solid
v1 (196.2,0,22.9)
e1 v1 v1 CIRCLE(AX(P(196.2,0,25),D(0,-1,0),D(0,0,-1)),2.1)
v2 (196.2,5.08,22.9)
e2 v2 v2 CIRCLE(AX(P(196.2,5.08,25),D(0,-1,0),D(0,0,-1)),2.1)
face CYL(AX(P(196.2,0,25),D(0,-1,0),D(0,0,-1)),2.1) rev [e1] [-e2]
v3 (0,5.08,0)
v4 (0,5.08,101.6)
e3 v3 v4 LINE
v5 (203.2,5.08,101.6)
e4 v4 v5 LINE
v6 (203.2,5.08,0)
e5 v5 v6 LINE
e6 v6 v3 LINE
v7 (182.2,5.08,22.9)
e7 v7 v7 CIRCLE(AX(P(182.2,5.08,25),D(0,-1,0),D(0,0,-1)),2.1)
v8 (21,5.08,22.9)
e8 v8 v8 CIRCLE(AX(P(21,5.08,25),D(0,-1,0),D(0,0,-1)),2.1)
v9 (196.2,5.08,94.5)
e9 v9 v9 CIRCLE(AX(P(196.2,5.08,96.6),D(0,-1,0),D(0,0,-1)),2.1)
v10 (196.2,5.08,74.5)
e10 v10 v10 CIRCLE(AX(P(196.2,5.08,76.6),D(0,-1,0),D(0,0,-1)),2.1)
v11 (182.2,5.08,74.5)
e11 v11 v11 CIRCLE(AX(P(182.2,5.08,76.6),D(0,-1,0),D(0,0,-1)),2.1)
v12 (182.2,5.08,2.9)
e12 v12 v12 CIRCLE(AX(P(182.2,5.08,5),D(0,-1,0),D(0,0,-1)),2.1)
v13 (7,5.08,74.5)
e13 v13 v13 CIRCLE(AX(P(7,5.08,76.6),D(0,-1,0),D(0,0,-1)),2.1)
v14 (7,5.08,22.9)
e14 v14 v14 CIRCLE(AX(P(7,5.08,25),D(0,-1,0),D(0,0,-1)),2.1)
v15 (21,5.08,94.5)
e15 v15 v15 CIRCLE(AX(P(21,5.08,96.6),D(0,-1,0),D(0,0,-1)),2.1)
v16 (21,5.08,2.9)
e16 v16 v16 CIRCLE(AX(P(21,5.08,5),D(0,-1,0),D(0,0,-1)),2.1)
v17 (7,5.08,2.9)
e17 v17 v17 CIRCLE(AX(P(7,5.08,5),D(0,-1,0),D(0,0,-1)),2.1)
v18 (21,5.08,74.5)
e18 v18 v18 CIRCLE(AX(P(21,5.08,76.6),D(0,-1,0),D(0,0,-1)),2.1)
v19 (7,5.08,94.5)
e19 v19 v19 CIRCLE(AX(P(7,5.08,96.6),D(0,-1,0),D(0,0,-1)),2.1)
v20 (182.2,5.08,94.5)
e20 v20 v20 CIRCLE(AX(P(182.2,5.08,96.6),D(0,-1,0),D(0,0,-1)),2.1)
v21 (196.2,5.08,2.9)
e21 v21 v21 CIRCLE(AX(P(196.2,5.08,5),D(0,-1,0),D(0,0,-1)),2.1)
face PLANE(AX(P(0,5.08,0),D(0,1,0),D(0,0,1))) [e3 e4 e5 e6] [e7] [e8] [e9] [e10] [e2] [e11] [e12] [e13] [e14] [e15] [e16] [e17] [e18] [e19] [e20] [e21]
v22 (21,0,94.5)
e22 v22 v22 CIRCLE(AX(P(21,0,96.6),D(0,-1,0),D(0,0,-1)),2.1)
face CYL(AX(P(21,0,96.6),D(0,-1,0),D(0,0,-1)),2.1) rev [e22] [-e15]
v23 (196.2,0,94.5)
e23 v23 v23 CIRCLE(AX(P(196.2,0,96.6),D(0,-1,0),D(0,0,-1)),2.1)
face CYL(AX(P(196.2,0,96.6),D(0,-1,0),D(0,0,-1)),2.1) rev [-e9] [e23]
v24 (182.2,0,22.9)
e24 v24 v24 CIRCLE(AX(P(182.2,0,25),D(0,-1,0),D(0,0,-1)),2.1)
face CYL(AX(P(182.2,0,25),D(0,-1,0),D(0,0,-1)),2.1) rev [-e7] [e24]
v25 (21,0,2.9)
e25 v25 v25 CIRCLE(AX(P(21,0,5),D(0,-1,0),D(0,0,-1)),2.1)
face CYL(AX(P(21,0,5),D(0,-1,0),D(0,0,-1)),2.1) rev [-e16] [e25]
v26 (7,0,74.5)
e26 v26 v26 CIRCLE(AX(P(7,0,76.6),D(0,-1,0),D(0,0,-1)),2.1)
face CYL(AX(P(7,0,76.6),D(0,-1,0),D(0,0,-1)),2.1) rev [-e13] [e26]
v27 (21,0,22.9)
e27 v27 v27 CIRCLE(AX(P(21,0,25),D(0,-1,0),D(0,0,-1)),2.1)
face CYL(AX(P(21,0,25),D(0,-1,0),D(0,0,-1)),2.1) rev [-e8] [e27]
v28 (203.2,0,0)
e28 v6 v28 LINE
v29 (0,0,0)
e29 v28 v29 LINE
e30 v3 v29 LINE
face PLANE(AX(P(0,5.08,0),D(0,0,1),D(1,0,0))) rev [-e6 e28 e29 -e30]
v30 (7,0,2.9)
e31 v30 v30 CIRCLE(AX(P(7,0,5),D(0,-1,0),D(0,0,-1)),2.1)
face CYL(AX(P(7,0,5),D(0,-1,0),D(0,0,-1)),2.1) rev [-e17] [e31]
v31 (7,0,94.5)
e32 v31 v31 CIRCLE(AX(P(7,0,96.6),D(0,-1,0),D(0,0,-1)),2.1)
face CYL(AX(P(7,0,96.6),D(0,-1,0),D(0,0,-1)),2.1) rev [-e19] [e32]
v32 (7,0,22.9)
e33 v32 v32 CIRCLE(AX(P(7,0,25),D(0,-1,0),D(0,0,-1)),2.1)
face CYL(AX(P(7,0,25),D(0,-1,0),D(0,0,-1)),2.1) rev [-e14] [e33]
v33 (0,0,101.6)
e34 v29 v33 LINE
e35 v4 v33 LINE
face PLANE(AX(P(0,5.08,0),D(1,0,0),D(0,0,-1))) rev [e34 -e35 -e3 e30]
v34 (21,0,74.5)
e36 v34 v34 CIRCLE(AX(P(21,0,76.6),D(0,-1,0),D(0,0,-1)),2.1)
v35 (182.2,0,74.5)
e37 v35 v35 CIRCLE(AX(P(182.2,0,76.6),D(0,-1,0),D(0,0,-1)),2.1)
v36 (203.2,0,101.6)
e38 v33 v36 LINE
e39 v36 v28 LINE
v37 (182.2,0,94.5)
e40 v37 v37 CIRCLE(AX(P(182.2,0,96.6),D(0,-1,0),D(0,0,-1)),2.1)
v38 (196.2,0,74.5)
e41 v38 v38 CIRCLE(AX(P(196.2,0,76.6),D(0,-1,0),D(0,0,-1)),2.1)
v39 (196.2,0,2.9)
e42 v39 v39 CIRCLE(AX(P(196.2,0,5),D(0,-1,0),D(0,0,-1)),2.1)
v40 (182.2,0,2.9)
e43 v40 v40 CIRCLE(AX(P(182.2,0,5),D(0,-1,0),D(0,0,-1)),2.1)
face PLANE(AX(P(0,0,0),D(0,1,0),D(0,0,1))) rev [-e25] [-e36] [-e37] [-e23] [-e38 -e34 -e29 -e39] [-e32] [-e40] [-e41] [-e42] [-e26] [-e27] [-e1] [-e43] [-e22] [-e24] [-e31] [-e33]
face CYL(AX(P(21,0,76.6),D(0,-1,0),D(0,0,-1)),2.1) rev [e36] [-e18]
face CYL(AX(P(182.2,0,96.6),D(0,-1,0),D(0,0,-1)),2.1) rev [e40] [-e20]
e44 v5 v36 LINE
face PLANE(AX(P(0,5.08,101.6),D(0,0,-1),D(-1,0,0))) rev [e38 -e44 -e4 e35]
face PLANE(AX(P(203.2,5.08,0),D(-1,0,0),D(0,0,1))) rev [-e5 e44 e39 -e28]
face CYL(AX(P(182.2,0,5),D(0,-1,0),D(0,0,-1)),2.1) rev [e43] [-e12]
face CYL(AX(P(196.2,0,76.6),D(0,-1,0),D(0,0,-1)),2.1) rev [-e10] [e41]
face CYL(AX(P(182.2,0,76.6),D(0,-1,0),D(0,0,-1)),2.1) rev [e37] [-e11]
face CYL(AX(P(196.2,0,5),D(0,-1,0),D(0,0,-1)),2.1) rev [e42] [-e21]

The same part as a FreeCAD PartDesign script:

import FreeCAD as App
import Part
import Sketcher

V = App.Vector
Q = App.Units.Quantity

doc = App.newDocument("Part")
params = doc.addObject("Spreadsheet::Sheet", "Params")
for row, (alias, value) in enumerate([
    ("sketch1_width", "8 in"),
    ("sketch1_height", "4 in"),
    ("pad1_length", "0.2 in"),
    ("hole_diameter", "4.2 mm"),
], start=1):
    params.set(f"A{row}", alias)
    params.set(f"B{row}", "=" + value)
    params.setAlias(f"B{row}", alias)

body = doc.addObject("PartDesign::Body", "Body")

sketch1 = doc.addObject("Sketcher::SketchObject", "Sketch")
body.addObject(sketch1)
sketch1.AttachmentSupport = (doc.XZ_Plane, [""])
sketch1.MapMode = "FlatFace"
sketch1.addGeometry(Part.LineSegment(V(0, 0, 0), V(0, 101.6, 0)), False)
sketch1.addGeometry(Part.LineSegment(V(0, 101.6, 0), V(203.2, 101.6, 0)), False)
sketch1.addGeometry(Part.LineSegment(V(203.2, 101.6, 0), V(203.2, 0, 0)), False)
sketch1.addGeometry(Part.LineSegment(V(203.2, 0, 0), V(0, 0, 0)), False)
sketch1.addConstraint(Sketcher.Constraint("Coincident", 0, 2, 1, 1))
sketch1.addConstraint(Sketcher.Constraint("Coincident", 1, 2, 2, 1))
sketch1.addConstraint(Sketcher.Constraint("Coincident", 2, 2, 3, 1))
sketch1.addConstraint(Sketcher.Constraint("Coincident", 3, 2, 0, 1))
sketch1.addConstraint(Sketcher.Constraint("Vertical", 0))
sketch1.addConstraint(Sketcher.Constraint("Horizontal", 1))
sketch1.addConstraint(Sketcher.Constraint("Vertical", 2))
sketch1.addConstraint(Sketcher.Constraint("Horizontal", 3))
sketch1.addConstraint(Sketcher.Constraint("Coincident", 3, 2, -1, 1))
sketch1.addConstraint(Sketcher.Constraint("DistanceX", 1, 1, 1, 2, Q("8 in")))
sketch1.addConstraint(Sketcher.Constraint("DistanceY", 0, 1, 0, 2, Q("4 in")))
sketch1.setExpression("Constraints[9]", "Params.sketch1_width")
sketch1.setExpression("Constraints[10]", "Params.sketch1_height")
pad1 = doc.addObject("PartDesign::Pad", "Pad")
body.addObject(pad1)
pad1.Profile = sketch1
pad1.setExpression("Length", "Params.pad1_length")
pad1.Reversed = True

sketch2 = doc.addObject("Sketcher::SketchObject", "Sketch001")
body.addObject(sketch2)
sketch2.AttachmentSupport = (doc.XZ_Plane, [""])
sketch2.MapMode = "FlatFace"
sketch2.addGeometry(Part.Circle(V(196.2, 5, 0), V(0, 0, 1), 2.1), False)
sketch2.addGeometry(Part.Circle(V(182.2, 5, 0), V(0, 0, 1), 2.1), False)
sketch2.addGeometry(Part.Circle(V(196.2, 25, 0), V(0, 0, 1), 2.1), False)
sketch2.addGeometry(Part.Circle(V(182.2, 25, 0), V(0, 0, 1), 2.1), False)
sketch2.addGeometry(Part.Circle(V(21, 5, 0), V(0, 0, 1), 2.1), False)
sketch2.addGeometry(Part.Circle(V(7, 5, 0), V(0, 0, 1), 2.1), False)
sketch2.addGeometry(Part.Circle(V(21, 25, 0), V(0, 0, 1), 2.1), False)
sketch2.addGeometry(Part.Circle(V(7, 25, 0), V(0, 0, 1), 2.1), False)
sketch2.addGeometry(Part.Circle(V(7, 76.6, 0), V(0, 0, 1), 2.1), False)
sketch2.addGeometry(Part.Circle(V(196.2, 76.6, 0), V(0, 0, 1), 2.1), False)
sketch2.addGeometry(Part.Circle(V(182.2, 76.6, 0), V(0, 0, 1), 2.1), False)
sketch2.addGeometry(Part.Circle(V(182.2, 96.6, 0), V(0, 0, 1), 2.1), False)
sketch2.addGeometry(Part.Circle(V(196.2, 96.6, 0), V(0, 0, 1), 2.1), False)
sketch2.addGeometry(Part.Circle(V(21, 76.6, 0), V(0, 0, 1), 2.1), False)
sketch2.addGeometry(Part.Circle(V(21, 96.6, 0), V(0, 0, 1), 2.1), False)
sketch2.addGeometry(Part.Circle(V(7, 96.6, 0), V(0, 0, 1), 2.1), False)
sketch2.addConstraint(Sketcher.Constraint("Equal", 0, 1))
sketch2.addConstraint(Sketcher.Constraint("Equal", 1, 2))
sketch2.addConstraint(Sketcher.Constraint("Equal", 2, 3))
sketch2.addConstraint(Sketcher.Constraint("Equal", 3, 4))
sketch2.addConstraint(Sketcher.Constraint("Equal", 4, 5))
sketch2.addConstraint(Sketcher.Constraint("Equal", 5, 6))
sketch2.addConstraint(Sketcher.Constraint("Equal", 6, 7))
sketch2.addConstraint(Sketcher.Constraint("Equal", 7, 8))
sketch2.addConstraint(Sketcher.Constraint("Equal", 8, 9))
sketch2.addConstraint(Sketcher.Constraint("Equal", 9, 10))
sketch2.addConstraint(Sketcher.Constraint("Equal", 10, 11))
sketch2.addConstraint(Sketcher.Constraint("Equal", 11, 12))
sketch2.addConstraint(Sketcher.Constraint("Equal", 12, 13))
sketch2.addConstraint(Sketcher.Constraint("Equal", 13, 14))
sketch2.addConstraint(Sketcher.Constraint("Equal", 14, 15))
sketch2.addConstraint(Sketcher.Constraint("Horizontal", 0, 3, 1, 3))
sketch2.addConstraint(Sketcher.Constraint("Horizontal", 2, 3, 3, 3))
sketch2.addConstraint(Sketcher.Constraint("Horizontal", 1, 3, 4, 3))
sketch2.addConstraint(Sketcher.Constraint("Horizontal", 4, 3, 5, 3))
sketch2.addConstraint(Sketcher.Constraint("Horizontal", 3, 3, 6, 3))
sketch2.addConstraint(Sketcher.Constraint("Horizontal", 6, 3, 7, 3))
sketch2.addConstraint(Sketcher.Constraint("Horizontal", 8, 3, 9, 3))
sketch2.addConstraint(Sketcher.Constraint("Horizontal", 9, 3, 10, 3))
sketch2.addConstraint(Sketcher.Constraint("Horizontal", 11, 3, 12, 3))
sketch2.addConstraint(Sketcher.Constraint("Horizontal", 10, 3, 13, 3))
sketch2.addConstraint(Sketcher.Constraint("Horizontal", 12, 3, 14, 3))
sketch2.addConstraint(Sketcher.Constraint("Horizontal", 14, 3, 15, 3))
sketch2.addConstraint(Sketcher.Constraint("Vertical", 0, 3, 2, 3))
sketch2.addConstraint(Sketcher.Constraint("Vertical", 1, 3, 3, 3))
sketch2.addConstraint(Sketcher.Constraint("Vertical", 4, 3, 6, 3))
sketch2.addConstraint(Sketcher.Constraint("Vertical", 5, 3, 7, 3))
sketch2.addConstraint(Sketcher.Constraint("Vertical", 7, 3, 8, 3))
sketch2.addConstraint(Sketcher.Constraint("Vertical", 2, 3, 9, 3))
sketch2.addConstraint(Sketcher.Constraint("Vertical", 3, 3, 10, 3))
sketch2.addConstraint(Sketcher.Constraint("Vertical", 10, 3, 11, 3))
sketch2.addConstraint(Sketcher.Constraint("Vertical", 9, 3, 12, 3))
sketch2.addConstraint(Sketcher.Constraint("Vertical", 6, 3, 13, 3))
sketch2.addConstraint(Sketcher.Constraint("Vertical", 13, 3, 14, 3))
sketch2.addConstraint(Sketcher.Constraint("Vertical", 8, 3, 15, 3))
sketch2.addConstraint(Sketcher.Constraint("Diameter", 0, Q("4.2 mm")))
sketch2.addConstraint(Sketcher.Constraint("DistanceX", -1, 1, 0, 3, Q("196.2 mm")))
sketch2.addConstraint(Sketcher.Constraint("DistanceY", -1, 1, 0, 3, Q("5 mm")))
sketch2.addConstraint(Sketcher.Constraint("DistanceX", -1, 1, 1, 3, Q("182.2 mm")))
sketch2.addConstraint(Sketcher.Constraint("DistanceY", -1, 1, 2, 3, Q("25 mm")))
sketch2.addConstraint(Sketcher.Constraint("DistanceX", -1, 1, 4, 3, Q("21 mm")))
sketch2.addConstraint(Sketcher.Constraint("DistanceX", -1, 1, 5, 3, Q("7 mm")))
sketch2.addConstraint(Sketcher.Constraint("DistanceY", -1, 1, 8, 3, Q("76.6 mm")))
sketch2.addConstraint(Sketcher.Constraint("DistanceY", -1, 1, 11, 3, Q("96.6 mm")))
doc.recompute()
hole = doc.addObject("PartDesign::Hole", "Hole")
body.addObject(hole)
hole.Profile = sketch2
hole.ThreadType = "None"
hole.setExpression("Diameter", "Params.hole_diameter")
hole.DepthType = "ThroughAll"

doc.recompute()
